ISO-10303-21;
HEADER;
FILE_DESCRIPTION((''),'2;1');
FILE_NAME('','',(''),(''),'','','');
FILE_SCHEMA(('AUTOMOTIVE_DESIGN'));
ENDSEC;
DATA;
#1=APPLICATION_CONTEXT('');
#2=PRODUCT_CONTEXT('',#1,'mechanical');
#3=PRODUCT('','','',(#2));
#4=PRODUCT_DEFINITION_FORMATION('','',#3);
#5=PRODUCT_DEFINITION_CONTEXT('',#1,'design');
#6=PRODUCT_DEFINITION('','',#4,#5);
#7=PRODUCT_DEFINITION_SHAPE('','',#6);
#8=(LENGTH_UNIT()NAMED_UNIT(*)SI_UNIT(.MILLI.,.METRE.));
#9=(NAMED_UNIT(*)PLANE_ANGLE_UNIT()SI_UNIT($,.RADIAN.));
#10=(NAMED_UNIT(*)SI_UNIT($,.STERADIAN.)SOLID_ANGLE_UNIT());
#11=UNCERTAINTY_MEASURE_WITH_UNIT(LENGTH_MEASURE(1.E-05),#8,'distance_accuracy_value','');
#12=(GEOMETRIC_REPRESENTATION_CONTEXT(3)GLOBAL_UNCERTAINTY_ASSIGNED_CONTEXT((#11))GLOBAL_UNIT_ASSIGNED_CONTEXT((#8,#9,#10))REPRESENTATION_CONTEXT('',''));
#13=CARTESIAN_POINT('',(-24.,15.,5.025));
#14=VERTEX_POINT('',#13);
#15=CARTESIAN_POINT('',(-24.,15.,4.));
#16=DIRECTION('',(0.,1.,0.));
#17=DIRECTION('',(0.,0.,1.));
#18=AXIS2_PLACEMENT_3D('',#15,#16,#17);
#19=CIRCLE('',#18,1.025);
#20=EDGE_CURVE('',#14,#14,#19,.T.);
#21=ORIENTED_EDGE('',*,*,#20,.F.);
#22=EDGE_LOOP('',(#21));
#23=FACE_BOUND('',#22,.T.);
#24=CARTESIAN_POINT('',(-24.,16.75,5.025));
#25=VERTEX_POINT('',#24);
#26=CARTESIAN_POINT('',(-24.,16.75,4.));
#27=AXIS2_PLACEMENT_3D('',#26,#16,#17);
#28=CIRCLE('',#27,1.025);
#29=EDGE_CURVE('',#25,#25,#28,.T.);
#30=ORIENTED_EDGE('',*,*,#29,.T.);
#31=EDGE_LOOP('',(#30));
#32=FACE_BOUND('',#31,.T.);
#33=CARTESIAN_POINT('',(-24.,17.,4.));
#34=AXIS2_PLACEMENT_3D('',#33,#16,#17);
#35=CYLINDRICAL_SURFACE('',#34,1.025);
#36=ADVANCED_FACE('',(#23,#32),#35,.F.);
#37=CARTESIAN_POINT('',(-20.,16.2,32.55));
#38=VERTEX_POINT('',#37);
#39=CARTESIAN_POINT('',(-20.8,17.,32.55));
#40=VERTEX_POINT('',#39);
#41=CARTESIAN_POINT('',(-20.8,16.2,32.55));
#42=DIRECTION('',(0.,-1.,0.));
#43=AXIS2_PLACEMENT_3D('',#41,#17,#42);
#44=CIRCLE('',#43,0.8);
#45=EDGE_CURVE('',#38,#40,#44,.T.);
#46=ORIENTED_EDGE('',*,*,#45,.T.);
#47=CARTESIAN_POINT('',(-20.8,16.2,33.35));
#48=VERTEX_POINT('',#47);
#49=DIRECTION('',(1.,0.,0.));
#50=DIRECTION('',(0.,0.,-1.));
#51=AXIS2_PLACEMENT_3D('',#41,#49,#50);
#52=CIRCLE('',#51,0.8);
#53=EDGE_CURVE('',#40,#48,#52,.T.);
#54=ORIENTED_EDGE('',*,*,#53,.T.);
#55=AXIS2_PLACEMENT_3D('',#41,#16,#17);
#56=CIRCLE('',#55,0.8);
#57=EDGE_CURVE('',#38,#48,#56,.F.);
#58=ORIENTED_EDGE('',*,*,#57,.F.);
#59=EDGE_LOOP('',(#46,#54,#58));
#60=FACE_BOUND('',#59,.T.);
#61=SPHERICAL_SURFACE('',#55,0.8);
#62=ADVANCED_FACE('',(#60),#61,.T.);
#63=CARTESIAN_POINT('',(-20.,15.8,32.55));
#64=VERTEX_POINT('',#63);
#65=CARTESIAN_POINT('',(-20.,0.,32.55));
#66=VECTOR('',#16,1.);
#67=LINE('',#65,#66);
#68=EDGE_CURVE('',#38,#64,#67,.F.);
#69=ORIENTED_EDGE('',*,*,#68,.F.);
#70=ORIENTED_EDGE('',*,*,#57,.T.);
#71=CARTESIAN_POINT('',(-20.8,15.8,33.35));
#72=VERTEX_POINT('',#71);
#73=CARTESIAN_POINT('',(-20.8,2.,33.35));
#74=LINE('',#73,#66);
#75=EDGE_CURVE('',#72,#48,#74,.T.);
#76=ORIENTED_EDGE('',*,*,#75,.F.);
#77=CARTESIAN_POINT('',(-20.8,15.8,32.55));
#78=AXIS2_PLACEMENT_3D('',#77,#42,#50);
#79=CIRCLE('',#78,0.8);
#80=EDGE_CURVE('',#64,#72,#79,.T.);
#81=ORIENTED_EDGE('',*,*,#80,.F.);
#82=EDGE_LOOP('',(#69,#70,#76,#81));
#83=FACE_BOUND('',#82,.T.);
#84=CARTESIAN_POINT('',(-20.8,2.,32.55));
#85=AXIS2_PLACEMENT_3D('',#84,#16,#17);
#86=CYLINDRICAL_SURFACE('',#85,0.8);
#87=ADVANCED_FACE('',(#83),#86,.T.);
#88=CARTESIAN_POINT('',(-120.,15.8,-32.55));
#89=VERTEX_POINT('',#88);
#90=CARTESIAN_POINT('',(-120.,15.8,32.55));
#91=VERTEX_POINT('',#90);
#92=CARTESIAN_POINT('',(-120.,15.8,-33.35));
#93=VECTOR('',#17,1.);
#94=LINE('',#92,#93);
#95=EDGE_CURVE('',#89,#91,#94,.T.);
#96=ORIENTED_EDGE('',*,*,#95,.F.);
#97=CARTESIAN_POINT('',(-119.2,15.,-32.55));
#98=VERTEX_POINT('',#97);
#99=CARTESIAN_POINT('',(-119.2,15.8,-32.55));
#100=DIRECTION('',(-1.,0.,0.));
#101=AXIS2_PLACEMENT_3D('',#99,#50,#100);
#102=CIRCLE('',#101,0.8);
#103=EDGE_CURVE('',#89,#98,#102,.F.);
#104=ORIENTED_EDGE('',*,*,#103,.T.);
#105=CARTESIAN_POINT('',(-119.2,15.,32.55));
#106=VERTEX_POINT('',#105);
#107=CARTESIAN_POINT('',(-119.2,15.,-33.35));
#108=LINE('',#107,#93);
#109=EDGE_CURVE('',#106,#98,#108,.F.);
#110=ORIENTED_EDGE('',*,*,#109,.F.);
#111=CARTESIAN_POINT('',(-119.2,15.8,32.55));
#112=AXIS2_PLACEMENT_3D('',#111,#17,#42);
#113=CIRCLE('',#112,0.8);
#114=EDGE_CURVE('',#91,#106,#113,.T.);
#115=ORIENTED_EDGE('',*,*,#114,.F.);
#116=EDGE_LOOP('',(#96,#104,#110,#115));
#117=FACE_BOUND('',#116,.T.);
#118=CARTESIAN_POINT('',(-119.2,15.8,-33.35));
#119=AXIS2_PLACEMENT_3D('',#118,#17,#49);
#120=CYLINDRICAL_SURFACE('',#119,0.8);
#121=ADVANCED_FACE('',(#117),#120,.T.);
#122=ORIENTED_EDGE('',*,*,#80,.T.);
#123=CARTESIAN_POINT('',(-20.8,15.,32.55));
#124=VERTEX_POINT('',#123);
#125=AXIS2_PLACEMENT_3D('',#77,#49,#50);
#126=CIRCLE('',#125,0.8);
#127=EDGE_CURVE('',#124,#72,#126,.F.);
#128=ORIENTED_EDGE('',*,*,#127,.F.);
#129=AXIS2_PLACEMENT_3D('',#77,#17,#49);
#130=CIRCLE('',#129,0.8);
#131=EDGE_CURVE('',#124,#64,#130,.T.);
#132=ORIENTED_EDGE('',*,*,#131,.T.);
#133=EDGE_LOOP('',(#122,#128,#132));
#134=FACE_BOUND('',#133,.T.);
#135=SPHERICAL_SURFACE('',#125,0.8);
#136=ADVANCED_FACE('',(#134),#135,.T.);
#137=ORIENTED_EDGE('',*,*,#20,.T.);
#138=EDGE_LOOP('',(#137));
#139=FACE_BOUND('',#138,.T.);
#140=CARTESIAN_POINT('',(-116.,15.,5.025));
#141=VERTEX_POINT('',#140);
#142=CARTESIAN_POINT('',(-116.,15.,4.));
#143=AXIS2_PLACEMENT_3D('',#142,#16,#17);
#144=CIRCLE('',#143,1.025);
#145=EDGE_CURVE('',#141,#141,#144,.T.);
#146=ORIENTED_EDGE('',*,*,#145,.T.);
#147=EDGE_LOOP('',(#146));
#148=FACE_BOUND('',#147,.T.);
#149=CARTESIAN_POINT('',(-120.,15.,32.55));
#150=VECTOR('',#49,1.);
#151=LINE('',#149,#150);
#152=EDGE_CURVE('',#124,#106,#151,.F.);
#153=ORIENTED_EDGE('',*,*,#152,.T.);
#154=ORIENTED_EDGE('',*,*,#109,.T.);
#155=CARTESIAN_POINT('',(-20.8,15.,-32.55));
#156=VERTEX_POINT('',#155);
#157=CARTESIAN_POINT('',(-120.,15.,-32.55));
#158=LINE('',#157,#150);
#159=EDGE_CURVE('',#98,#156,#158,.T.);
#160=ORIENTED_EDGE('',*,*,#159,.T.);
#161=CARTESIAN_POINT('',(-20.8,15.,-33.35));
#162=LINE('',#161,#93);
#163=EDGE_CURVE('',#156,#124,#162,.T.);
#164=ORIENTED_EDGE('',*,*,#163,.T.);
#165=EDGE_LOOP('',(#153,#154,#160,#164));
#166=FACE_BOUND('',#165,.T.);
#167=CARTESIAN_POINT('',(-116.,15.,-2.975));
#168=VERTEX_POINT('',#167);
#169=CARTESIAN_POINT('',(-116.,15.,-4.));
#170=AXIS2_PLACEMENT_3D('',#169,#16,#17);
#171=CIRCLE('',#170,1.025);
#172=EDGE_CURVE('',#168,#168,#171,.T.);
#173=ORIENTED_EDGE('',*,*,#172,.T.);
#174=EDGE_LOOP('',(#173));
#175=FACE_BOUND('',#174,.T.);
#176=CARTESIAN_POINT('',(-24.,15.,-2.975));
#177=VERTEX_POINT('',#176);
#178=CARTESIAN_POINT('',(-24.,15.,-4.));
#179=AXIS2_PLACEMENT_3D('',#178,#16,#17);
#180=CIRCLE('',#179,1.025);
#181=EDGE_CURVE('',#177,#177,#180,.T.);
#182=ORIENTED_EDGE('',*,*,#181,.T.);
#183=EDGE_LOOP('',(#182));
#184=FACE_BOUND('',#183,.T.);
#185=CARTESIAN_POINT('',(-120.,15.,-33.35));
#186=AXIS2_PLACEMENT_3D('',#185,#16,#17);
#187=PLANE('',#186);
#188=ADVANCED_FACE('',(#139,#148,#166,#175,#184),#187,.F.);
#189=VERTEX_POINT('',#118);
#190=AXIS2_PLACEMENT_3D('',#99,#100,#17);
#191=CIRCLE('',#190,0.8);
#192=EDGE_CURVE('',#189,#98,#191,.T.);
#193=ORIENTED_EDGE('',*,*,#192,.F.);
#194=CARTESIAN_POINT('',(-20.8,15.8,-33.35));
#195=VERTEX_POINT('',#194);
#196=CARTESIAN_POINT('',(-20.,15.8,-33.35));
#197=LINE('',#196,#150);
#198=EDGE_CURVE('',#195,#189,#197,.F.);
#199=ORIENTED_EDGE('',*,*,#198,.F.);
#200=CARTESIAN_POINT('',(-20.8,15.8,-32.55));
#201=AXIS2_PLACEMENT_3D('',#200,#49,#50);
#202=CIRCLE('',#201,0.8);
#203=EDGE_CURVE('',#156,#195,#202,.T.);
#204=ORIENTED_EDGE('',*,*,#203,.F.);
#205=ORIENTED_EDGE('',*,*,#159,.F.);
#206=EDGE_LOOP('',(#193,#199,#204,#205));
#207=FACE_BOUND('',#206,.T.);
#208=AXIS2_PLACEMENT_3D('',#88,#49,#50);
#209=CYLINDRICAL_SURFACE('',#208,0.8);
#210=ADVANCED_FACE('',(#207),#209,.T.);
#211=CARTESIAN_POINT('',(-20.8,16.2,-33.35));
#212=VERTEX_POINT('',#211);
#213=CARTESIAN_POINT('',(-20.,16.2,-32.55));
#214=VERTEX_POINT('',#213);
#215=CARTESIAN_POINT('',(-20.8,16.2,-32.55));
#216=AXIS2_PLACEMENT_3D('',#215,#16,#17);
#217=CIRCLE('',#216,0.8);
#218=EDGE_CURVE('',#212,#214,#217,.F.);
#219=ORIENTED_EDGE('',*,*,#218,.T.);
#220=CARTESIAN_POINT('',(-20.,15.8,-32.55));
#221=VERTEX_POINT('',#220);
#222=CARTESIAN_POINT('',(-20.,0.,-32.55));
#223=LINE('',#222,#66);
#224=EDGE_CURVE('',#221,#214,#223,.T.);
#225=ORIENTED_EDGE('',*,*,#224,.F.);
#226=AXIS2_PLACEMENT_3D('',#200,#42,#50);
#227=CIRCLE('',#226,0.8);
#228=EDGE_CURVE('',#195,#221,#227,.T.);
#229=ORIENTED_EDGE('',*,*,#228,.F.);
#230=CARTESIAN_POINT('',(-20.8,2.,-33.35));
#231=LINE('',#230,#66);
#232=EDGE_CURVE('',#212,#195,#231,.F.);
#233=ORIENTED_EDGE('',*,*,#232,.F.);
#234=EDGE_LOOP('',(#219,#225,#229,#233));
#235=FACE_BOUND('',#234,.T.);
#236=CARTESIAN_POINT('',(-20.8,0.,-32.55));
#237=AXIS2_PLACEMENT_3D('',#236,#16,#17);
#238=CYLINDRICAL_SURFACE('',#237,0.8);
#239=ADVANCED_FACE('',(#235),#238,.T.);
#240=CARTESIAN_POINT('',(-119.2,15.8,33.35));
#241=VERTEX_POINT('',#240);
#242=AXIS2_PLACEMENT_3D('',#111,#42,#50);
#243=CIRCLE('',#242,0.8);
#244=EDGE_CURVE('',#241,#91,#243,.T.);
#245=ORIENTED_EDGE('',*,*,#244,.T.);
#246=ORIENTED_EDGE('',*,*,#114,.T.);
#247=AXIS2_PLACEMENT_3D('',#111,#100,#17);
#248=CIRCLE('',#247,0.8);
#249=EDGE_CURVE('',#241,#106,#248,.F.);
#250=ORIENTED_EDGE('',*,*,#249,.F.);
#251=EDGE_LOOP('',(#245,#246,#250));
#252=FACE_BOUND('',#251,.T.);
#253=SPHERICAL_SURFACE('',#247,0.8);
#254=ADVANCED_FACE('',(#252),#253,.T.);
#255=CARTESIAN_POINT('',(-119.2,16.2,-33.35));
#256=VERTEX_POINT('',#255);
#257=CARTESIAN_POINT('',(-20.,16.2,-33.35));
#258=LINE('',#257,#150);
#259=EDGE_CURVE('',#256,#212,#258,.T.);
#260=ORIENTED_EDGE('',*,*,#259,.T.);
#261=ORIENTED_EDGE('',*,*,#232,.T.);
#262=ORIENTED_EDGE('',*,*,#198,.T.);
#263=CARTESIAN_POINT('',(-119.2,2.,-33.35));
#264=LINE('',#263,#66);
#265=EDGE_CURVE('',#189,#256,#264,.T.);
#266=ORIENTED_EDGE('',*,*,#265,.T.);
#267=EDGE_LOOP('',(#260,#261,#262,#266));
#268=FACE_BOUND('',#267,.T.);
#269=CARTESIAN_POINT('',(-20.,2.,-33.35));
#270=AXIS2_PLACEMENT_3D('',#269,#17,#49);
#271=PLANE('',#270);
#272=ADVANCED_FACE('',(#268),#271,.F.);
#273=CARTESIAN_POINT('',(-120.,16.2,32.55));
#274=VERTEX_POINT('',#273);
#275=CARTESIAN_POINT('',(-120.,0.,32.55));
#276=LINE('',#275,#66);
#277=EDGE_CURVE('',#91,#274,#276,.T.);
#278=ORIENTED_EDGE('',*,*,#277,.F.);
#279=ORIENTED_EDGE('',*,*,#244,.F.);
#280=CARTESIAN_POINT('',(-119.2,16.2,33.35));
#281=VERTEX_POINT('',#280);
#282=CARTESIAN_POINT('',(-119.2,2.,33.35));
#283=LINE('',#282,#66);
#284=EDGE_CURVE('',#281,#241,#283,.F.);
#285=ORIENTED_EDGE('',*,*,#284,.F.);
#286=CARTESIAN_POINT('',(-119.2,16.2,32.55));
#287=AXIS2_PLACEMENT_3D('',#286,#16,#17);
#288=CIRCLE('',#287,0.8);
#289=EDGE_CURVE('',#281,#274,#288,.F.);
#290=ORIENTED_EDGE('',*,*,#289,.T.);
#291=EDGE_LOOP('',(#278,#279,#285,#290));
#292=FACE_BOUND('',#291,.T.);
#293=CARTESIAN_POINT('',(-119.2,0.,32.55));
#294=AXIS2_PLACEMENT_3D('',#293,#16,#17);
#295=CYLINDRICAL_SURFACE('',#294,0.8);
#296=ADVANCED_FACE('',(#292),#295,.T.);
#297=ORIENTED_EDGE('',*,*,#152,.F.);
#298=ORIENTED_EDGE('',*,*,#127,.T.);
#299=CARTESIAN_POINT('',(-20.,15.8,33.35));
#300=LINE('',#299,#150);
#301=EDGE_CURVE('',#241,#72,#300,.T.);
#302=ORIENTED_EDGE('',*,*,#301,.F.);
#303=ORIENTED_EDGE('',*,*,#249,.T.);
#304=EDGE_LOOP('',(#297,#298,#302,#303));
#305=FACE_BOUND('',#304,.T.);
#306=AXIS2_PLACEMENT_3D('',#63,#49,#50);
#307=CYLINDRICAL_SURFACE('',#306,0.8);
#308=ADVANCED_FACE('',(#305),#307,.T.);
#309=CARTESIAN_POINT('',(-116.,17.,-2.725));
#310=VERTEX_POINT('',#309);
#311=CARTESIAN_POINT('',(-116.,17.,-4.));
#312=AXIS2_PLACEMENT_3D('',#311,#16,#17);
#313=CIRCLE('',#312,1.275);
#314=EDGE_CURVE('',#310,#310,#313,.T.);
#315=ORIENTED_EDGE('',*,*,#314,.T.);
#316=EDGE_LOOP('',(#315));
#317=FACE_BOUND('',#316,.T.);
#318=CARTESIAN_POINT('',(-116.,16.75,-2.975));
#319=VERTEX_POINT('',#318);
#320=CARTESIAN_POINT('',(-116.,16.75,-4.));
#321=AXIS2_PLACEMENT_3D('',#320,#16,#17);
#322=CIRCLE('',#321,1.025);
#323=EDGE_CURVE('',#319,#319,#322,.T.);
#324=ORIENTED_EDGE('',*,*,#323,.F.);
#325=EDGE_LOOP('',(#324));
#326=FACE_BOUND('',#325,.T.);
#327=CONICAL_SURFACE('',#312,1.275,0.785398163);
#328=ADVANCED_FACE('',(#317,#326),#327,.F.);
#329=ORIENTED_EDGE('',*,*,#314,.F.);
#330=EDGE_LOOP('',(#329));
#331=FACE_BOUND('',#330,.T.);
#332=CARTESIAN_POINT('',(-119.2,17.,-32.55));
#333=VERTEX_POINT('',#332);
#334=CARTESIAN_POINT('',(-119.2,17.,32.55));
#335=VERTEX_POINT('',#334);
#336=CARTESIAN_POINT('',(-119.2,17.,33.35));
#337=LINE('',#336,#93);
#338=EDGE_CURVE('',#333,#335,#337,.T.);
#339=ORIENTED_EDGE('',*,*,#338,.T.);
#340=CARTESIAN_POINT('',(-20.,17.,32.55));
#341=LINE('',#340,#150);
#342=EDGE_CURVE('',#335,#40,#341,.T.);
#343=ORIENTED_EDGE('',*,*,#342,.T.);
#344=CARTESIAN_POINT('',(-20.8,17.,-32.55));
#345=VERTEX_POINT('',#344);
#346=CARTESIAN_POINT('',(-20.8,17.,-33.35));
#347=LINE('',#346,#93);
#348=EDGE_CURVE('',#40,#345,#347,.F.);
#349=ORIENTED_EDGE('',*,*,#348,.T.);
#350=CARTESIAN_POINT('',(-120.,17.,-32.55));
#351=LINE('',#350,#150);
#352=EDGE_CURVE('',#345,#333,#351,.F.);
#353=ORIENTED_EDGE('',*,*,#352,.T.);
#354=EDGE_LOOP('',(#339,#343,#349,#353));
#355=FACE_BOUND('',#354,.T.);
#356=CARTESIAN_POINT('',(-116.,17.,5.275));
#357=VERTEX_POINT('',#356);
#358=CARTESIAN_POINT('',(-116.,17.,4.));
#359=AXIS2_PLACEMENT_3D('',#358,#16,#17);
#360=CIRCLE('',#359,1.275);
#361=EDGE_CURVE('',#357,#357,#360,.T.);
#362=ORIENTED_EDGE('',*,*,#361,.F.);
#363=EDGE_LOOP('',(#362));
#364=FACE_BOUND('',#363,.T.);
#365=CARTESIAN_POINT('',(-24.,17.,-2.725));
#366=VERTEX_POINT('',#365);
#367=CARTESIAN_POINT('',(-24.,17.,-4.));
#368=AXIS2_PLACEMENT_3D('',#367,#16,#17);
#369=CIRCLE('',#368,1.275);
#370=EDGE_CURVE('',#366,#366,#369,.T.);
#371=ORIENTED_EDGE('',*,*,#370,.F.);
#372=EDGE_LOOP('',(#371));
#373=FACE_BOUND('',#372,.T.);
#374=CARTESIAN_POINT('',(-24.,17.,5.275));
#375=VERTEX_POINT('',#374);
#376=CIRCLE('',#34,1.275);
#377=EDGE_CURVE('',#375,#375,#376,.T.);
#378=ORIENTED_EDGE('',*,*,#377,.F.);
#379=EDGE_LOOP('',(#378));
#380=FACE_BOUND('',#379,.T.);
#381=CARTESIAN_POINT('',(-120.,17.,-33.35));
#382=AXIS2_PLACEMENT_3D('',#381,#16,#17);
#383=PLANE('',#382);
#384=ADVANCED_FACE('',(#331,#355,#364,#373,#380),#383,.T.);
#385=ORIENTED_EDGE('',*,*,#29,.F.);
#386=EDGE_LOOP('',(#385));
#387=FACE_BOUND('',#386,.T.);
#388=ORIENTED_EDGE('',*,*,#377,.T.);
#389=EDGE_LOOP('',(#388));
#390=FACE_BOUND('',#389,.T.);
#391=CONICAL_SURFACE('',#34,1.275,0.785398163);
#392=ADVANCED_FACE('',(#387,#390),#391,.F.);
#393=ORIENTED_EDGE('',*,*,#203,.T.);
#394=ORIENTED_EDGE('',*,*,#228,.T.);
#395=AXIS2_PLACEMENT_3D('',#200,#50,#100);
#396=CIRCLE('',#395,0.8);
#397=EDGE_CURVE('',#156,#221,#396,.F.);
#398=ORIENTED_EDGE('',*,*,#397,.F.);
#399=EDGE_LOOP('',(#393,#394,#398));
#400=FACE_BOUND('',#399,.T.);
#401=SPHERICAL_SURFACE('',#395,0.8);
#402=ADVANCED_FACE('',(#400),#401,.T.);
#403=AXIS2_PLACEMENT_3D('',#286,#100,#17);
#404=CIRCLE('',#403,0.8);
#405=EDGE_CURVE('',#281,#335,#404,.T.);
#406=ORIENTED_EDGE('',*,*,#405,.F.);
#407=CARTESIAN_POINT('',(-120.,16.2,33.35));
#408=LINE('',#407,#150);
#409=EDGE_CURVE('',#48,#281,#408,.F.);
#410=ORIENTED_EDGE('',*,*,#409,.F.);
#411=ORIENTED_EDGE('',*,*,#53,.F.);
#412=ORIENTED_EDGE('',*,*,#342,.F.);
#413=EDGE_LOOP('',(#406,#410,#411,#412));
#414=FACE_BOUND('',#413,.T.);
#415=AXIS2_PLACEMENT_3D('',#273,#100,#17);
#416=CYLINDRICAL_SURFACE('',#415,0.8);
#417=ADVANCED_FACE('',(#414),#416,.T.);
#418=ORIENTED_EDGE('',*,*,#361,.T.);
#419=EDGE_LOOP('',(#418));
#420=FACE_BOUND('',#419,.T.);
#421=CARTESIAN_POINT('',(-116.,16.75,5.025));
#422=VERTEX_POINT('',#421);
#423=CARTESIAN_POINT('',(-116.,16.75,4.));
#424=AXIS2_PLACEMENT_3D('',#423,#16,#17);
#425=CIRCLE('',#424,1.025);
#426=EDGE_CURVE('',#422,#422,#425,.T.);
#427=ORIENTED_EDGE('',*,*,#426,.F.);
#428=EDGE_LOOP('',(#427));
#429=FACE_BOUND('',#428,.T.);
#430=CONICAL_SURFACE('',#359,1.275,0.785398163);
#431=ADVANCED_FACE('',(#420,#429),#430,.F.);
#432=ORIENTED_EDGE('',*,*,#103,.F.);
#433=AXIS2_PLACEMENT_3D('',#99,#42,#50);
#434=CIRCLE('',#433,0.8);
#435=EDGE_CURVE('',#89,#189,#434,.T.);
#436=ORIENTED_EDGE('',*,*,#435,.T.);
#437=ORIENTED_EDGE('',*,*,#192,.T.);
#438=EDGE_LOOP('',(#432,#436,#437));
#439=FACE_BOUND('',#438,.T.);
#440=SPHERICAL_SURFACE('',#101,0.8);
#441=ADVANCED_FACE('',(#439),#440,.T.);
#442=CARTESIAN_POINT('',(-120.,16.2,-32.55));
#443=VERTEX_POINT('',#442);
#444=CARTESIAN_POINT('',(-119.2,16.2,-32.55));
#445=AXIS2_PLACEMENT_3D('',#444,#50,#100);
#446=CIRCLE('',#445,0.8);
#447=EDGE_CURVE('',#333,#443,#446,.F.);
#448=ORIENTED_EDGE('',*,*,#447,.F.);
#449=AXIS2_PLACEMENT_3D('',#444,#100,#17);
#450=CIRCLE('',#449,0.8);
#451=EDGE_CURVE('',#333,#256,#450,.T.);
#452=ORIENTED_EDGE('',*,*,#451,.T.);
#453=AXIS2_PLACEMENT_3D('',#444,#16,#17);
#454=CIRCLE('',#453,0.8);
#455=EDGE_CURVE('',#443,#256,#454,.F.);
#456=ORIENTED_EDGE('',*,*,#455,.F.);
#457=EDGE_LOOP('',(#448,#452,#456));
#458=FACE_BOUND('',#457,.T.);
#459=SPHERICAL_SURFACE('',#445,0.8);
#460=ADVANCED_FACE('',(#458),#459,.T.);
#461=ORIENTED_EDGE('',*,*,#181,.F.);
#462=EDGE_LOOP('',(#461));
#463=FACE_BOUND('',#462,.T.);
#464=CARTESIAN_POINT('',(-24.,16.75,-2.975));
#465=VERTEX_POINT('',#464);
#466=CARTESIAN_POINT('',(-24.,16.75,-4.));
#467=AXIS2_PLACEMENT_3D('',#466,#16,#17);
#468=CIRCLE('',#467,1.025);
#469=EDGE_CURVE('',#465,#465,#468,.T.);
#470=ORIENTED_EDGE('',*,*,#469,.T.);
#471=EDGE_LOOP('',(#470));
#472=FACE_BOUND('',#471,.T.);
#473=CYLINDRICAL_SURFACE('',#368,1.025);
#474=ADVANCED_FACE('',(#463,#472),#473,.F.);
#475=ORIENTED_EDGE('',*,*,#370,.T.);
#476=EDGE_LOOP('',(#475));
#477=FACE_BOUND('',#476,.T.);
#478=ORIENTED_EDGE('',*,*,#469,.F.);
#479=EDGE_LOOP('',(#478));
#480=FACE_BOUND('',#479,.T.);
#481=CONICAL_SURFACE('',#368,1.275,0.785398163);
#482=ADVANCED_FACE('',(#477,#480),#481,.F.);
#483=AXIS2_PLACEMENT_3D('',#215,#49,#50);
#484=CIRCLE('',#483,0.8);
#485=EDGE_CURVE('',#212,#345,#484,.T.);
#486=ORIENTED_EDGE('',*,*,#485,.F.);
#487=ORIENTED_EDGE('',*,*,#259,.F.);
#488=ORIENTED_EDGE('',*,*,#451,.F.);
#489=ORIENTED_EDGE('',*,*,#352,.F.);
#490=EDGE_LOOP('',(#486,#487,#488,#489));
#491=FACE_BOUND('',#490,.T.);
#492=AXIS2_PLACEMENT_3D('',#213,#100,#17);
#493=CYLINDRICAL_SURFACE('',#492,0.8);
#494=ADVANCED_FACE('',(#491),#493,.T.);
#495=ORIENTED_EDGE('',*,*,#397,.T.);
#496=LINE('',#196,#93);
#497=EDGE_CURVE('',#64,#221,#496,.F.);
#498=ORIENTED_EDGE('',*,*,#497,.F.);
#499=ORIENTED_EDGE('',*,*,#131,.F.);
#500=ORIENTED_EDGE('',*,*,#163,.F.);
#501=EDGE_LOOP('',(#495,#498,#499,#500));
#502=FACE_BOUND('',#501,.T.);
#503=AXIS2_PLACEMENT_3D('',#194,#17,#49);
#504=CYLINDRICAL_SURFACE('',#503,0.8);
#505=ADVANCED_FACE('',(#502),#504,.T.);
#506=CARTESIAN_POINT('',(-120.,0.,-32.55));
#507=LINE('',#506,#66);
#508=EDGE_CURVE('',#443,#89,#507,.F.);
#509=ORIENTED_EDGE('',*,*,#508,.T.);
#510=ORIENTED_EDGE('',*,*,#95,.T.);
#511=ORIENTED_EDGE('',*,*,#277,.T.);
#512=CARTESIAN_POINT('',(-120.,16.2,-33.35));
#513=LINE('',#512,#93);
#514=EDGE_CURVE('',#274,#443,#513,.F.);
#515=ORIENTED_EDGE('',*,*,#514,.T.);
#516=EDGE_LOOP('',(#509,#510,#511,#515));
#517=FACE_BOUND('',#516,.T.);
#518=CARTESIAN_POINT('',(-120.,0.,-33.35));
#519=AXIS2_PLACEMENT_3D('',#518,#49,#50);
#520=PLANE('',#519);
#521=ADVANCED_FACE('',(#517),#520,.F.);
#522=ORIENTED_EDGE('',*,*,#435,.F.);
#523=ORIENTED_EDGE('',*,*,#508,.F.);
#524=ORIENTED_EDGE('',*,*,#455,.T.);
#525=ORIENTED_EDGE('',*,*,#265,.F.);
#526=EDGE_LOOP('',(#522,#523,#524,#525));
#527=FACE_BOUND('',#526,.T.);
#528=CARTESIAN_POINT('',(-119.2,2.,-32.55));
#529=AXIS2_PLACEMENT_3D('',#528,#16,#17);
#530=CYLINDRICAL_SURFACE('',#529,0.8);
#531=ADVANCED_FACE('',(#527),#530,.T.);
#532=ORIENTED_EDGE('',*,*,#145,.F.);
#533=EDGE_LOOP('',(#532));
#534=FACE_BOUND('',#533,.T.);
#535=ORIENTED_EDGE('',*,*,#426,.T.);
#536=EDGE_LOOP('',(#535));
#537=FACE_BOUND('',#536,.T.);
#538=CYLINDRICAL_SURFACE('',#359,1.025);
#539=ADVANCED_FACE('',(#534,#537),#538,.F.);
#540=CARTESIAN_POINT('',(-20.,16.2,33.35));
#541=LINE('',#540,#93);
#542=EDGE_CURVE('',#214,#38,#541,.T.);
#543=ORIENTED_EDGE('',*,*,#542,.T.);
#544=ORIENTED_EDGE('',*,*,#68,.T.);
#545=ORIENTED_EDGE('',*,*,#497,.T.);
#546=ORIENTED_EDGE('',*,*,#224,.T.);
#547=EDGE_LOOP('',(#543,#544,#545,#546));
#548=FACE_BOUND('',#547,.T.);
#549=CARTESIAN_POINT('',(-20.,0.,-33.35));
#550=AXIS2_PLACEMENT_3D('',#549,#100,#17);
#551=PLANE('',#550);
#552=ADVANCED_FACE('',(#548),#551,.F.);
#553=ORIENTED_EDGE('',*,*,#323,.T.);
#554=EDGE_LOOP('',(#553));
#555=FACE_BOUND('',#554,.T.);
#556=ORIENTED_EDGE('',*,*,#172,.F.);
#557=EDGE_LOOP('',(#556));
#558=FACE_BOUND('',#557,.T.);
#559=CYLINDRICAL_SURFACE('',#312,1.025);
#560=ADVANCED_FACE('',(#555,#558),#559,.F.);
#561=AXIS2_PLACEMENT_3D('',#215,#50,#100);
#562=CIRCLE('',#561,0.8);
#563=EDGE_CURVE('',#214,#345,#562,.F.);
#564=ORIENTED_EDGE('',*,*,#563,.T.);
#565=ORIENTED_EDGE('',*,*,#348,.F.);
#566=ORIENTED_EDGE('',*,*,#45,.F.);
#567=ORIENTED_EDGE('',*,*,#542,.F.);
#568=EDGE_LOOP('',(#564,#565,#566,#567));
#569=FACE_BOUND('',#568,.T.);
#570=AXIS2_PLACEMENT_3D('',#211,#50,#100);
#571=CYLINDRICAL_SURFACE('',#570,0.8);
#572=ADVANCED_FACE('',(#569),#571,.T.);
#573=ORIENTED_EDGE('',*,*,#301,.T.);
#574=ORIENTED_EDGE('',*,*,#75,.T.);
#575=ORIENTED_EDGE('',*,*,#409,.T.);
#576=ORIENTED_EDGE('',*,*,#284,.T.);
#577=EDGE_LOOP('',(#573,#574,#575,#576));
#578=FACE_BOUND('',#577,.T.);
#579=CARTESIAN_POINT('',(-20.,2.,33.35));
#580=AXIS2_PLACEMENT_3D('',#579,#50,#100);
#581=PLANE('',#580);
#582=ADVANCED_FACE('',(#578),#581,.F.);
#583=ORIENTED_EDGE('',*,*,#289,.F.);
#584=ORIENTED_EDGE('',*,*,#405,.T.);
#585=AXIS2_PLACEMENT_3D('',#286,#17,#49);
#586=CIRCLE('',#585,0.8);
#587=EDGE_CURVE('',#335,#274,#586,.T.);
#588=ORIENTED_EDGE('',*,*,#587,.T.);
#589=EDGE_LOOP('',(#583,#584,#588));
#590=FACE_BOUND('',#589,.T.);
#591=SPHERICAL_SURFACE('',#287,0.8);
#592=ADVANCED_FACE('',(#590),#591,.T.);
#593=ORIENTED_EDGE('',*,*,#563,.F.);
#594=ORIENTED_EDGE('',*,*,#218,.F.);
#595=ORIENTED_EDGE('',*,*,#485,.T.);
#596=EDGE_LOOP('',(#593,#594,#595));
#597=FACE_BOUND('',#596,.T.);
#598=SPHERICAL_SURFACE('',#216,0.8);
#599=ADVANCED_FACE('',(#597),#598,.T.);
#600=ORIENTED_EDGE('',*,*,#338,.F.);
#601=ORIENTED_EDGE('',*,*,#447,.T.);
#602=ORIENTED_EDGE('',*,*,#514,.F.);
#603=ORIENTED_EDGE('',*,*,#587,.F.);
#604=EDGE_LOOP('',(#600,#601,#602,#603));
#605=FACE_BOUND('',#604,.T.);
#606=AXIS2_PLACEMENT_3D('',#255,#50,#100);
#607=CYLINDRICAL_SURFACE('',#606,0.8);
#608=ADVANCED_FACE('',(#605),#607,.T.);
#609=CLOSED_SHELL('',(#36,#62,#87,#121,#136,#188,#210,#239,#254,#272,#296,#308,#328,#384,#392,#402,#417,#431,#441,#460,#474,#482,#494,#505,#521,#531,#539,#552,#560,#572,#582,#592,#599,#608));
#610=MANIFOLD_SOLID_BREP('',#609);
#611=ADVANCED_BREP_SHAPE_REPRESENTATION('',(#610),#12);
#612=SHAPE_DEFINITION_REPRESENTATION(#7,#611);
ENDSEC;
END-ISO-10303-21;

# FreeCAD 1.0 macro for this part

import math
import FreeCAD as App
import Part
import Sketcher

V = App.Vector
Q = App.Units.Quantity


def edges_at(feature, points):
    """Names of the edges that pass closest to the given points."""
    edges = feature.Shape.Edges
    near = lambda p: min(range(len(edges)), key=lambda i: edges[i].distToShape(Part.Vertex(*p))[0])
    return sorted({f"Edge{near(p) + 1}" for p in points})

doc = App.newDocument("Part")
body = doc.addObject("PartDesign::Body", "Body")

# Sketch on XZ plane
sketch1 = body.newObject("Sketcher::SketchObject", "Sketch")
sketch1.AttachmentSupport = (doc.getObject("XZ_Plane"), [""])
sketch1.MapMode = "FlatFace"
sketch1.addGeometry([
    Part.LineSegment(V(-20, -33, 0), V(-20, 33, 0)),
    Part.LineSegment(V(-20, 33, 0), V(20, 33, 0)),
    Part.LineSegment(V(20, 33, 0), V(20, -33, 0)),
    Part.LineSegment(V(20, -33, 0), V(-20, -33, 0)),
], False)
sketch1.addConstraint([
    Sketcher.Constraint("Coincident", 0, 2, 1, 1),
    Sketcher.Constraint("Coincident", 1, 2, 2, 1),
    Sketcher.Constraint("Coincident", 2, 2, 3, 1),
    Sketcher.Constraint("Coincident", 3, 2, 0, 1),
    Sketcher.Constraint("Vertical", 0),
    Sketcher.Constraint("Horizontal", 1),
    Sketcher.Constraint("Vertical", 2),
    Sketcher.Constraint("Horizontal", 3),
    Sketcher.Constraint("Symmetric", 0, 2, 2, 2, -1, 1),
    Sketcher.Constraint("DistanceX", 1, 1, 1, 2, 40.0),
    Sketcher.Constraint("DistanceY", 0, 1, 0, 2, 66.7),
])
pad1 = body.newObject("PartDesign::Pad", "Pad")
pad1.Profile = sketch1
pad1.Length = 2
pad1.Reversed = True

# Sketch on XZ plane
sketch2 = body.newObject("Sketcher::SketchObject", "Sketch001")
sketch2.AttachmentSupport = (doc.getObject("XZ_Plane"), [""])
sketch2.MapMode = "FlatFace"
sketch2.AttachmentOffset = App.Placement(V(0, 0, -2), App.Rotation())
sketch2.addGeometry([
    Part.LineSegment(V(-20, -33.4, 0), V(-20, 33.4, 0)),
    Part.LineSegment(V(-20, 33.4, 0), V(-16, 33.4, 0)),
    Part.LineSegment(V(-16, 33.4, 0), V(-16, -33.4, 0)),
    Part.LineSegment(V(-16, -33.4, 0), V(-20, -33.4, 0)),
], False)
sketch2.addConstraint([
    Sketcher.Constraint("Coincident", 0, 2, 1, 1),
    Sketcher.Constraint("Coincident", 1, 2, 2, 1),
    Sketcher.Constraint("Coincident", 2, 2, 3, 1),
    Sketcher.Constraint("Coincident", 3, 2, 0, 1),
    Sketcher.Constraint("Vertical", 0),
    Sketcher.Constraint("Horizontal", 1),
    Sketcher.Constraint("Vertical", 2),
    Sketcher.Constraint("Horizontal", 3),
    Sketcher.Constraint("DistanceX", 1, 1, 1, 2, 4.0),
    Sketcher.Constraint("DistanceY", 0, 1, 0, 2, 66.7),
    Sketcher.Constraint("DistanceX", 0, 2, -1, 1, 20.0),
    Sketcher.Constraint("DistanceY", -1, 1, 0, 2, 33.35),
])
pad2 = body.newObject("PartDesign::Pad", "Pad001")
pad2.Profile = sketch2
pad2.Length = 100
pad2.Reversed = True

# Sketch on YZ plane
sketch3 = body.newObject("Sketcher::SketchObject", "Sketch002")
sketch3.AttachmentSupport = (doc.getObject("YZ_Plane"), [""])
sketch3.MapMode = "FlatFace"
sketch3.AttachmentOffset = App.Placement(V(0, 0, -20), App.Rotation())
sketch3.addGeometry([
    Part.ArcOfCircle(Part.Circle(V(69, 0, 0), V(0, 0, 1), 33), math.radians(0), math.radians(90)),  # 0
    Part.LineSegment(V(69, 33, 0), V(102, 33, 0)),  # 1
    Part.LineSegment(V(102, 33, 0), V(102, 0, 0)),  # 2
    Part.ArcOfCircle(Part.Circle(V(69, 0, 0), V(0, 0, 1), 33), math.radians(-90), math.radians(0)),  # 3
    Part.LineSegment(V(102, 0, 0), V(102, -33, 0)),  # 4
    Part.LineSegment(V(102, -33, 0), V(69, -33, 0)),  # 5
], False)
sketch3.addConstraint([
    Sketcher.Constraint("Tangent", 0, 2, 1, 1),
    Sketcher.Constraint("Coincident", 1, 2, 2, 1),
    Sketcher.Constraint("Tangent", 2, 2, 0, 1),
    Sketcher.Constraint("Tangent", 3, 2, 4, 1),
    Sketcher.Constraint("Coincident", 4, 2, 5, 1),
    Sketcher.Constraint("Tangent", 5, 2, 3, 1),
    Sketcher.Constraint("Horizontal", 1),
    Sketcher.Constraint("Vertical", 2),
    Sketcher.Constraint("Vertical", 4),
    Sketcher.Constraint("Horizontal", 5),
    Sketcher.Constraint("Coincident", 3, 3, 0, 3),
    Sketcher.Constraint("Equal", 0, 3),
    Sketcher.Constraint("PointOnObject", 0, 3, -1),
    Sketcher.Constraint("Radius", 0, 33.35),
    Sketcher.Constraint("DistanceX", -1, 1, 1, 2, 102.0),
])
pocket1 = body.newObject("PartDesign::Pocket", "Pocket")
pocket1.Profile = sketch3
pocket1.Type = "ThroughAll"
pocket1.Midplane = True

# Sketch on YZ plane
sketch4 = body.newObject("Sketcher::SketchObject", "Sketch003")
sketch4.AttachmentSupport = (doc.getObject("YZ_Plane"), [""])
sketch4.MapMode = "FlatFace"
sketch4.AttachmentOffset = App.Placement(V(0, 0, -20), App.Rotation())
sketch4.addGeometry([
    Part.Circle(V(97.7, 0, 0), V(0, 0, 1), 1.6),
    Part.Circle(V(54.1, 25.1, 0), V(0, 0, 1), 1.6),
    Part.Circle(V(54.1, -25.1, 0), V(0, 0, 1), 1.6),
], False)
sketch4.addConstraint([
    Sketcher.Constraint("Equal", 0, 1),
    Sketcher.Constraint("Equal", 1, 2),
    Sketcher.Constraint("Symmetric", 1, 3, 2, 3, -1),
    Sketcher.Constraint("PointOnObject", 0, 3, -1),
    Sketcher.Constraint("Diameter", 0, 3.3),
    Sketcher.Constraint("DistanceX", 1, 3, 0, 3, 43.5),
    Sketcher.Constraint("DistanceX", -1, 1, 0, 3, 97.65),
    Sketcher.Constraint("DistanceY", -1, 1, 1, 3, 25.114737),
])
doc.recompute()
hole = body.newObject("PartDesign::Hole", "Hole")
hole.Profile = sketch4
hole.ThreadType = "None"
hole.Diameter = 3.3
hole.DepthType = "ThroughAll"
hole.HoleCutType = "Countersink"
hole.HoleCutDiameter = 4.05
hole.HoleCutCountersinkAngle = 90
hole.Reversed = True

# Sketch on YZ plane
sketch5 = body.newObject("Sketcher::SketchObject", "Sketch004")
sketch5.AttachmentSupport = (doc.getObject("YZ_Plane"), [""])
sketch5.MapMode = "FlatFace"
sketch5.AttachmentOffset = App.Placement(V(0, 0, 15), App.Rotation())
sketch5.addGeometry([
    Part.LineSegment(V(0, -28.4, 0), V(2, -28.4, 0)),  # 0
    Part.LineSegment(V(2, -28.4, 0), V(2, -26.3, 0)),  # 1
    Part.LineSegment(V(2, -26.3, 0), V(1.6, -26.7, 0)),  # 2
    Part.LineSegment(V(1.6, -26.7, 0), V(0, -26.7, 0)),  # 3
    Part.LineSegment(V(0, -26.7, 0), V(0, -28.4, 0)),  # 4
], False)
sketch5.addGeometry(Part.LineSegment(V(2, -28.4, 0), V(0, -28.4, 0)), True)  # axis
sketch5.addConstraint([
    Sketcher.Constraint("Coincident", 0, 2, 1, 1),
    Sketcher.Constraint("Coincident", 1, 2, 2, 1),
    Sketcher.Constraint("Coincident", 2, 2, 3, 1),
    Sketcher.Constraint("Coincident", 3, 2, 4, 1),
    Sketcher.Constraint("Coincident", 4, 2, 0, 1),
    Sketcher.Constraint("Horizontal", 0),
    Sketcher.Constraint("Vertical", 1),
    Sketcher.Constraint("Horizontal", 3),
    Sketcher.Constraint("Vertical", 4),
    Sketcher.Constraint("Horizontal", 5),
    Sketcher.Constraint("Coincident", 5, 1, 0, 2),
    Sketcher.Constraint("PointOnObject", 3, 2, -2),
    Sketcher.Constraint("PointOnObject", 5, 2, -2),
    Sketcher.Constraint("DistanceX", 0, 1, 0, 2, 2.0),
    Sketcher.Constraint("Angle", 2, Q("-135 deg")),
    Sketcher.Constraint("DistanceY", 4, 2, 4, 1, 1.65),
    Sketcher.Constraint("DistanceY", 2, 2, -1, 1, 26.7),
    Sketcher.Constraint("DistanceX", 3, 2, 3, 1, 1.625),
])
groove = body.newObject("PartDesign::Groove", "Groove")
groove.Profile = sketch5
groove.ReferenceAxis = (sketch5, ["Axis0"])
groove.Angle = 360
doc.recompute()

datumline = body.newObject("PartDesign::Line", "DatumLine")
datumline.Placement = App.Placement(V(0, 0, 0), App.Rotation(V(0, 0, 1), V(-0.950808565, 0, 0.309779072)))
linearpattern = body.newObject("PartDesign::LinearPattern", "LinearPattern")
linearpattern.Originals = [groove]
linearpattern.Direction = (datumline, [""])
linearpattern.Mode = "offset"
linearpattern.Offset = 68.592947
linearpattern.Occurrences = 2
body.Tip = linearpattern
doc.recompute()

linearpattern2 = body.newObject("PartDesign::LinearPattern", "LinearPattern001")
linearpattern2.Originals = [groove]
linearpattern2.Direction = (doc.getObject("X_Axis"), [""])
linearpattern2.Mode = "offset"
linearpattern2.Offset = 26
linearpattern2.Occurrences = 2
linearpattern2.Reversed = True
body.Tip = linearpattern2
doc.recompute()

datumline2 = body.newObject("PartDesign::Line", "DatumLine001")
datumline2.Placement = App.Placement(V(0, 0, 0), App.Rotation(V(0, 0, 1), V(-0.416820309, 0, 0.908988905)))
linearpattern3 = body.newObject("PartDesign::LinearPattern", "LinearPattern002")
linearpattern3.Originals = [groove]
linearpattern3.Direction = (datumline2, [""])
linearpattern3.Mode = "offset"
linearpattern3.Offset = 62.376999
linearpattern3.Occurrences = 2
body.Tip = linearpattern3
doc.recompute()

linearpattern4 = body.newObject("PartDesign::LinearPattern", "LinearPattern003")
linearpattern4.Originals = [groove]
linearpattern4.Direction = (doc.getObject("Z_Axis"), [""])
linearpattern4.Mode = "offset"
linearpattern4.Offset = 56.7
linearpattern4.Occurrences = 2
body.Tip = linearpattern4

# Sketch on YZ plane
sketch6 = body.newObject("Sketcher::SketchObject", "Sketch005")
sketch6.AttachmentSupport = (doc.getObject("YZ_Plane"), [""])
sketch6.MapMode = "FlatFace"
sketch6.AttachmentOffset = App.Placement(V(0, 0, -20), App.Rotation())
sketch6.addGeometry([
    Part.LineSegment(V(17, -33.4, 0), V(15, -33.4, 0)),
    Part.LineSegment(V(15, -33.4, 0), V(15, 33.4, 0)),
    Part.LineSegment(V(15, 33.4, 0), V(17, 33.4, 0)),
    Part.LineSegment(V(17, 33.4, 0), V(17, -33.4, 0)),
], False)
sketch6.addConstraint([
    Sketcher.Constraint("Coincident", 0, 2, 1, 1),
    Sketcher.Constraint("Coincident", 1, 2, 2, 1),
    Sketcher.Constraint("Coincident", 2, 2, 3, 1),
    Sketcher.Constraint("Coincident", 3, 2, 0, 1),
    Sketcher.Constraint("Horizontal", 0),
    Sketcher.Constraint("Vertical", 1),
    Sketcher.Constraint("Horizontal", 2),
    Sketcher.Constraint("Vertical", 3),
    Sketcher.Constraint("DistanceX", 0, 2, 0, 1, 2.0),
    Sketcher.Constraint("DistanceY", 1, 1, 1, 2, 66.7),
    Sketcher.Constraint("DistanceX", -1, 1, 0, 2, 15.0),
    Sketcher.Constraint("DistanceY", 0, 2, -1, 1, 33.35),
])
pad3 = body.newObject("PartDesign::Pad", "Pad002")
pad3.Profile = sketch6
pad3.Length = 100
pad3.Reversed = True
body2 = doc.addObject("PartDesign::Body", "Body001")

# Sketch on XZ plane
sketch7 = body2.newObject("Sketcher::SketchObject", "Sketch006")
sketch7.AttachmentSupport = (doc.getObject("XZ_Plane001"), [""])
sketch7.MapMode = "FlatFace"
sketch7.addGeometry([
    Part.LineSegment(V(-160, -33, 0), V(-160, 33, 0)),
    Part.LineSegment(V(-160, 33, 0), V(-120, 33, 0)),
    Part.LineSegment(V(-120, 33, 0), V(-120, -33, 0)),
    Part.LineSegment(V(-120, -33, 0), V(-160, -33, 0)),
], False)
sketch7.addConstraint([
    Sketcher.Constraint("Coincident", 0, 2, 1, 1),
    Sketcher.Constraint("Coincident", 1, 2, 2, 1),
    Sketcher.Constraint("Coincident", 2, 2, 3, 1),
    Sketcher.Constraint("Coincident", 3, 2, 0, 1),
    Sketcher.Constraint("Vertical", 0),
    Sketcher.Constraint("Horizontal", 1),
    Sketcher.Constraint("Vertical", 2),
    Sketcher.Constraint("Horizontal", 3),
    Sketcher.Constraint("DistanceX", 1, 1, 1, 2, 40.0),
    Sketcher.Constraint("DistanceY", 0, 1, 0, 2, 66.7),
    Sketcher.Constraint("DistanceX", 0, 2, -1, 1, 160.0),
    Sketcher.Constraint("DistanceY", -1, 1, 0, 2, 33.35),
])
pad4 = body2.newObject("PartDesign::Pad", "Pad003")
pad4.Profile = sketch7
pad4.Length = 2
pad4.Reversed = True
body.AllowCompound = True
doc.recompute()

boolean = body.newObject("PartDesign::Boolean", "Boolean")
boolean.Type = "Fuse"
boolean.addObjects([body2])

# Sketch on XZ plane
sketch8 = body.newObject("Sketcher::SketchObject", "Sketch007")
sketch8.AttachmentSupport = (doc.getObject("XZ_Plane"), [""])
sketch8.MapMode = "FlatFace"
sketch8.AttachmentOffset = App.Placement(V(0, 0, -2), App.Rotation())
sketch8.addGeometry([
    Part.LineSegment(V(-124, -33.4, 0), V(-124, 33.4, 0)),
    Part.LineSegment(V(-124, 33.4, 0), V(-120, 33.4, 0)),
    Part.LineSegment(V(-120, 33.4, 0), V(-120, -33.4, 0)),
    Part.LineSegment(V(-120, -33.4, 0), V(-124, -33.4, 0)),
], False)
sketch8.addConstraint([
    Sketcher.Constraint("Coincident", 0, 2, 1, 1),
    Sketcher.Constraint("Coincident", 1, 2, 2, 1),
    Sketcher.Constraint("Coincident", 2, 2, 3, 1),
    Sketcher.Constraint("Coincident", 3, 2, 0, 1),
    Sketcher.Constraint("Vertical", 0),
    Sketcher.Constraint("Horizontal", 1),
    Sketcher.Constraint("Vertical", 2),
    Sketcher.Constraint("Horizontal", 3),
    Sketcher.Constraint("DistanceX", 1, 1, 1, 2, 4.0),
    Sketcher.Constraint("DistanceY", 0, 1, 0, 2, 66.7),
    Sketcher.Constraint("DistanceX", 0, 2, -1, 1, 124.0),
    Sketcher.Constraint("DistanceY", -1, 1, 0, 2, 33.35),
])
pad5 = body.newObject("PartDesign::Pad", "Pad004")
pad5.Profile = sketch8
pad5.Length = 100
pad5.Reversed = True

# Sketch on YZ plane
sketch9 = body.newObject("Sketcher::SketchObject", "Sketch008")
sketch9.AttachmentSupport = (doc.getObject("YZ_Plane"), [""])
sketch9.MapMode = "FlatFace"
sketch9.AttachmentOffset = App.Placement(V(0, 0, -124), App.Rotation())
sketch9.addGeometry([
    Part.ArcOfCircle(Part.Circle(V(69, 0, 0), V(0, 0, 1), 33), math.radians(0), math.radians(90)),  # 0
    Part.LineSegment(V(69, 33, 0), V(102, 33, 0)),  # 1
    Part.LineSegment(V(102, 33, 0), V(102, 0, 0)),  # 2
    Part.ArcOfCircle(Part.Circle(V(69, 0, 0), V(0, 0, 1), 33), math.radians(-90), math.radians(0)),  # 3
    Part.LineSegment(V(102, 0, 0), V(102, -33, 0)),  # 4
    Part.LineSegment(V(102, -33, 0), V(69, -33, 0)),  # 5
], False)
sketch9.addConstraint([
    Sketcher.Constraint("Tangent", 0, 2, 1, 1),
    Sketcher.Constraint("Coincident", 1, 2, 2, 1),
    Sketcher.Constraint("Tangent", 2, 2, 0, 1),
    Sketcher.Constraint("Tangent", 3, 2, 4, 1),
    Sketcher.Constraint("Coincident", 4, 2, 5, 1),
    Sketcher.Constraint("Tangent", 5, 2, 3, 1),
    Sketcher.Constraint("Horizontal", 1),
    Sketcher.Constraint("Vertical", 2),
    Sketcher.Constraint("Vertical", 4),
    Sketcher.Constraint("Horizontal", 5),
    Sketcher.Constraint("Coincident", 3, 3, 0, 3),
    Sketcher.Constraint("Equal", 0, 3),
    Sketcher.Constraint("PointOnObject", 0, 3, -1),
    Sketcher.Constraint("Radius", 0, 33.35),
    Sketcher.Constraint("DistanceX", -1, 1, 1, 2, 102.0),
])
pocket2 = body.newObject("PartDesign::Pocket", "Pocket001")
pocket2.Profile = sketch9
pocket2.Type = "ThroughAll"
pocket2.Midplane = True

# Sketch on YZ plane
sketch10 = body.newObject("Sketcher::SketchObject", "Sketch009")
sketch10.AttachmentSupport = (doc.getObject("YZ_Plane"), [""])
sketch10.MapMode = "FlatFace"
sketch10.AttachmentOffset = App.Placement(V(0, 0, -129), App.Rotation())
sketch10.addGeometry([
    Part.LineSegment(V(0, -28.4, 0), V(2, -28.4, 0)),  # 0
    Part.LineSegment(V(2, -28.4, 0), V(2, -26.3, 0)),  # 1
    Part.LineSegment(V(2, -26.3, 0), V(1.6, -26.7, 0)),  # 2
    Part.LineSegment(V(1.6, -26.7, 0), V(0, -26.7, 0)),  # 3
    Part.LineSegment(V(0, -26.7, 0), V(0, -28.4, 0)),  # 4
], False)
sketch10.addGeometry(Part.LineSegment(V(2, -28.4, 0), V(0, -28.4, 0)), True)  # axis
sketch10.addConstraint([
    Sketcher.Constraint("Coincident", 0, 2, 1, 1),
    Sketcher.Constraint("Coincident", 1, 2, 2, 1),
    Sketcher.Constraint("Coincident", 2, 2, 3, 1),
    Sketcher.Constraint("Coincident", 3, 2, 4, 1),
    Sketcher.Constraint("Coincident", 4, 2, 0, 1),
    Sketcher.Constraint("Horizontal", 0),
    Sketcher.Constraint("Vertical", 1),
    Sketcher.Constraint("Horizontal", 3),
    Sketcher.Constraint("Vertical", 4),
    Sketcher.Constraint("Horizontal", 5),
    Sketcher.Constraint("Coincident", 5, 1, 0, 2),
    Sketcher.Constraint("PointOnObject", 3, 2, -2),
    Sketcher.Constraint("PointOnObject", 5, 2, -2),
    Sketcher.Constraint("DistanceX", 0, 1, 0, 2, 2.0),
    Sketcher.Constraint("Angle", 2, Q("-135 deg")),
    Sketcher.Constraint("DistanceY", 4, 2, 4, 1, 1.65),
    Sketcher.Constraint("DistanceY", 2, 2, -1, 1, 26.7),
    Sketcher.Constraint("DistanceX", 3, 2, 3, 1, 1.625),
])
groove2 = body.newObject("PartDesign::Groove", "Groove001")
groove2.Profile = sketch10
groove2.ReferenceAxis = (sketch10, ["Axis0"])
groove2.Angle = 360
doc.recompute()

linearpattern5 = body.newObject("PartDesign::LinearPattern", "LinearPattern004")
linearpattern5.Originals = [groove2]
linearpattern5.Direction = (doc.getObject("X_Axis"), [""])
linearpattern5.Mode = "offset"
linearpattern5.Offset = 26
linearpattern5.Occurrences = 2
linearpattern5.Reversed = True
body.Tip = linearpattern5
doc.recompute()

datumline3 = body.newObject("PartDesign::Line", "DatumLine002")
datumline3.Placement = App.Placement(V(0, 0, 0), App.Rotation(V(0, 0, 1), V(-0.416820309, 0, 0.908988905)))
linearpattern6 = body.newObject("PartDesign::LinearPattern", "LinearPattern005")
linearpattern6.Originals = [groove2]
linearpattern6.Direction = (datumline3, [""])
linearpattern6.Mode = "offset"
linearpattern6.Offset = 62.376999
linearpattern6.Occurrences = 2
body.Tip = linearpattern6
doc.recompute()

linearpattern7 = body.newObject("PartDesign::LinearPattern", "LinearPattern006")
linearpattern7.Originals = [groove2]
linearpattern7.Direction = (doc.getObject("Z_Axis"), [""])
linearpattern7.Mode = "offset"
linearpattern7.Offset = 56.7
linearpattern7.Occurrences = 2
body.Tip = linearpattern7

# Sketch on YZ plane
sketch11 = body.newObject("Sketcher::SketchObject", "Sketch010")
sketch11.AttachmentSupport = (doc.getObject("YZ_Plane"), [""])
sketch11.MapMode = "FlatFace"
sketch11.AttachmentOffset = App.Placement(V(0, 0, -124), App.Rotation())
sketch11.addGeometry(Part.Circle(V(69, 0, 0), V(0, 0, 1), 10), False)
sketch11.addConstraint([
    Sketcher.Constraint("PointOnObject", 0, 3, -1),
    Sketcher.Constraint("Diameter", 0, 19.0),
    Sketcher.Constraint("DistanceX", -1, 1, 0, 3, 68.65),
])
pocket3 = body.newObject("PartDesign::Pocket", "Pocket002")
pocket3.Profile = sketch11
pocket3.Type = "UpToFirst"
pocket3.Reversed = True

# Sketch on YZ plane
sketch12 = body.newObject("Sketcher::SketchObject", "Sketch011")
sketch12.AttachmentSupport = (doc.getObject("YZ_Plane"), [""])
sketch12.MapMode = "FlatFace"
sketch12.AttachmentOffset = App.Placement(V(0, 0, -16), App.Rotation())
sketch12.addGeometry(Part.Circle(V(69, 0, 0), V(0, 0, 1), 11), False)
sketch12.addConstraint([
    Sketcher.Constraint("PointOnObject", 0, 3, -1),
    Sketcher.Constraint("Diameter", 0, 22.0),
    Sketcher.Constraint("DistanceX", -1, 1, 0, 3, 68.65),
])
pocket4 = body.newObject("PartDesign::Pocket", "Pocket003")
pocket4.Profile = sketch12
pocket4.Type = "UpToFirst"

# Sketch on YZ plane
sketch13 = body.newObject("Sketcher::SketchObject", "Sketch012")
sketch13.AttachmentSupport = (doc.getObject("YZ_Plane"), [""])
sketch13.MapMode = "FlatFace"
sketch13.AttachmentOffset = App.Placement(V(0, 0, -16), App.Rotation())
sketch13.addGeometry(Part.Circle(V(59, -16.7, 0), V(0, 0, 1), 4.5), False)
sketch13.addConstraint([
    Sketcher.Constraint("Diameter", 0, 9.0),
    Sketcher.Constraint("DistanceX", -1, 1, 0, 3, 59.025),
    Sketcher.Constraint("DistanceY", 0, 3, -1, 1, 16.670989),
])
pocket5 = body.newObject("PartDesign::Pocket", "Pocket004")
pocket5.Profile = sketch13
pocket5.Type = "UpToFirst"
doc.recompute()

fillet = body.newObject("PartDesign::Fillet", "Fillet")
fillet.Base = (pocket5, edges_at(pocket5, [
    (-160, 1, -33.35),
    (-160, 1, 33.35),
    (20, 1, 33.35),
    (20, 1, -33.35),
]))
fillet.Radius = 2

# Sketch on XZ plane
sketch14 = body.newObject("Sketcher::SketchObject", "Sketch013")
sketch14.AttachmentSupport = (doc.getObject("XZ_Plane"), [""])
sketch14.MapMode = "FlatFace"
sketch14.AttachmentOffset = App.Placement(V(0, 0, -2), App.Rotation())
sketch14.addGeometry([
    Part.LineSegment(V(-160, -33, 0), V(-160, 33, 0)),
    Part.LineSegment(V(-160, 33, 0), V(-124, 33, 0)),
    Part.LineSegment(V(-124, 33, 0), V(-124, -33, 0)),
    Part.LineSegment(V(-124, -33, 0), V(-160, -33, 0)),
], False)
sketch14.addConstraint([
    Sketcher.Constraint("Coincident", 0, 2, 1, 1),
    Sketcher.Constraint("Coincident", 1, 2, 2, 1),
    Sketcher.Constraint("Coincident", 2, 2, 3, 1),
    Sketcher.Constraint("Coincident", 3, 2, 0, 1),
    Sketcher.Constraint("Vertical", 0),
    Sketcher.Constraint("Horizontal", 1),
    Sketcher.Constraint("Vertical", 2),
    Sketcher.Constraint("Horizontal", 3),
    Sketcher.Constraint("DistanceX", 1, 1, 1, 2, 36.0),
    Sketcher.Constraint("DistanceY", 0, 1, 0, 2, 66.7),
    Sketcher.Constraint("DistanceX", 0, 2, -1, 1, 160.0),
    Sketcher.Constraint("DistanceY", -1, 1, 0, 2, 33.35),
])
pocket6 = body.newObject("PartDesign::Pocket", "Pocket005")
pocket6.Profile = sketch14
pocket6.Type = "UpToFirst"
pocket6.Reversed = True

# Sketch on XZ plane
sketch15 = body.newObject("Sketcher::SketchObject", "Sketch014")
sketch15.AttachmentSupport = (doc.getObject("XZ_Plane"), [""])
sketch15.MapMode = "FlatFace"
sketch15.AttachmentOffset = App.Placement(V(0, 0, -2), App.Rotation())
sketch15.addGeometry([
    Part.LineSegment(V(-16, -33, 0), V(-16, 33, 0)),
    Part.LineSegment(V(-16, 33, 0), V(20, 33, 0)),
    Part.LineSegment(V(20, 33, 0), V(20, -33, 0)),
    Part.LineSegment(V(20, -33, 0), V(-16, -33, 0)),
], False)
sketch15.addConstraint([
    Sketcher.Constraint("Coincident", 0, 2, 1, 1),
    Sketcher.Constraint("Coincident", 1, 2, 2, 1),
    Sketcher.Constraint("Coincident", 2, 2, 3, 1),
    Sketcher.Constraint("Coincident", 3, 2, 0, 1),
    Sketcher.Constraint("Vertical", 0),
    Sketcher.Constraint("Horizontal", 1),
    Sketcher.Constraint("Vertical", 2),
    Sketcher.Constraint("Horizontal", 3),
    Sketcher.Constraint("DistanceX", 1, 1, 1, 2, 36.0),
    Sketcher.Constraint("DistanceY", 0, 1, 0, 2, 66.7),
    Sketcher.Constraint("DistanceX", 0, 2, -1, 1, 16.0),
    Sketcher.Constraint("DistanceY", -1, 1, 0, 2, 33.35),
])
pocket7 = body.newObject("PartDesign::Pocket", "Pocket006")
pocket7.Profile = sketch15
pocket7.Type = "UpToFirst"
pocket7.Reversed = True

# Sketch on YZ plane
sketch16 = body.newObject("Sketcher::SketchObject", "Sketch015")
sketch16.AttachmentSupport = (doc.getObject("YZ_Plane"), [""])
sketch16.MapMode = "FlatFace"
sketch16.AttachmentOffset = App.Placement(V(0, 0, -16), App.Rotation())
sketch16.addGeometry([
    Part.Circle(V(6, -9, 0), V(0, 0, 1), 1.2),
    Part.Circle(V(6, 9, 0), V(0, 0, 1), 1.2),
], False)
sketch16.addConstraint([
    Sketcher.Constraint("Equal", 0, 1),
    Sketcher.Constraint("Symmetric", 0, 3, 1, 3, -1),
    Sketcher.Constraint("Diameter", 0, 2.5),
    Sketcher.Constraint("DistanceX", -1, 1, 0, 3, 6.0),
    Sketcher.Constraint("DistanceY", 0, 3, -1, 1, 9.0),
])
doc.recompute()
hole2 = body.newObject("PartDesign::Hole", "Hole001")
hole2.Profile = sketch16
hole2.ThreadType = "None"
hole2.Diameter = 2.5
hole2.DepthType = "ThroughAll"
hole2.HoleCutType = "Countersink"
hole2.HoleCutDiameter = 3.05
hole2.HoleCutCountersinkAngle = 90

# Sketch on XZ plane
sketch17 = body.newObject("Sketcher::SketchObject", "Sketch016")
sketch17.AttachmentSupport = (doc.getObject("XZ_Plane"), [""])
sketch17.MapMode = "FlatFace"
sketch17.AttachmentOffset = App.Placement(V(0, 0, -17), App.Rotation())
sketch17.addGeometry([
    Part.LineSegment(V(-124, -33.4, 0), V(-124, 33.4, 0)),  # 0
    Part.LineSegment(V(-124, 33.4, 0), V(-120, 33.4, 0)),  # 1
    Part.LineSegment(V(-120, 33.4, 0), V(-120, -33.4, 0)),  # 2
    Part.LineSegment(V(-120, -33.4, 0), V(-124, -33.4, 0)),  # 3
    Part.LineSegment(V(-20, -33.4, 0), V(-20, 33.4, 0)),  # 4
    Part.LineSegment(V(-20, 33.4, 0), V(-16, 33.4, 0)),  # 5
    Part.LineSegment(V(-16, 33.4, 0), V(-16, -33.4, 0)),  # 6
    Part.LineSegment(V(-16, -33.4, 0), V(-20, -33.4, 0)),  # 7
], False)
sketch17.addConstraint([
    Sketcher.Constraint("Coincident", 0, 2, 1, 1),
    Sketcher.Constraint("Coincident", 1, 2, 2, 1),
    Sketcher.Constraint("Coincident", 2, 2, 3, 1),
    Sketcher.Constraint("Coincident", 3, 2, 0, 1),
    Sketcher.Constraint("Coincident", 4, 2, 5, 1),
    Sketcher.Constraint("Coincident", 5, 2, 6, 1),
    Sketcher.Constraint("Coincident", 6, 2, 7, 1),
    Sketcher.Constraint("Coincident", 7, 2, 4, 1),
    Sketcher.Constraint("Vertical", 0),
    Sketcher.Constraint("Horizontal", 1),
    Sketcher.Constraint("Vertical", 2),
    Sketcher.Constraint("Horizontal", 3),
    Sketcher.Constraint("Vertical", 4),
    Sketcher.Constraint("Horizontal", 5),
    Sketcher.Constraint("Vertical", 6),
    Sketcher.Constraint("Horizontal", 7),
    Sketcher.Constraint("Horizontal", 1, 2, 4, 2),
    Sketcher.Constraint("Horizontal", 3, 2, 6, 2),
    Sketcher.Constraint("Equal", 3, 5),
    Sketcher.Constraint("DistanceX", 1, 1, 1, 2, 4.0),
    Sketcher.Constraint("DistanceY", 0, 1, 0, 2, 66.7),
    Sketcher.Constraint("DistanceX", 0, 2, -1, 1, 124.0),
    Sketcher.Constraint("DistanceX", 4, 2, -1, 1, 20.0),
    Sketcher.Constraint("DistanceY", -1, 1, 0, 2, 33.35),
])
pocket8 = body.newObject("PartDesign::Pocket", "Pocket007")
pocket8.Profile = sketch17
pocket8.Type = "ThroughAll"
pocket8.Midplane = True

# Sketch on XZ plane
sketch18 = body.newObject("Sketcher::SketchObject", "Sketch017")
sketch18.AttachmentSupport = (doc.getObject("XZ_Plane"), [""])
sketch18.MapMode = "FlatFace"
sketch18.AttachmentOffset = App.Placement(V(0, 0, -17), App.Rotation())
sketch18.addGeometry([
    Part.Circle(V(-116, -4, 0), V(0, 0, 1), 1),
    Part.Circle(V(-116, 4, 0), V(0, 0, 1), 1),
    Part.Circle(V(-24, -4, 0), V(0, 0, 1), 1),
    Part.Circle(V(-24, 4, 0), V(0, 0, 1), 1),
], False)
sketch18.addConstraint([
    Sketcher.Constraint("Equal", 0, 1),
    Sketcher.Constraint("Equal", 1, 2),
    Sketcher.Constraint("Equal", 2, 3),
    Sketcher.Constraint("Symmetric", 0, 3, 1, 3, -1),
    Sketcher.Constraint("Symmetric", 2, 3, 3, 3, -1),
    Sketcher.Constraint("Horizontal", 0, 3, 2, 3),
    Sketcher.Constraint("Diameter", 0, 2.05),
    Sketcher.Constraint("DistanceX", 0, 3, -1, 1, 116.0),
    Sketcher.Constraint("DistanceY", 0, 3, -1, 1, 4.0),
    Sketcher.Constraint("DistanceX", 2, 3, -1, 1, 24.0),
])
doc.recompute()
hole3 = body.newObject("PartDesign::Hole", "Hole002")
hole3.Profile = sketch18
hole3.ThreadType = "None"
hole3.Diameter = 2.05
hole3.DepthType = "ThroughAll"
hole3.HoleCutType = "Countersink"
hole3.HoleCutDiameter = 2.55
hole3.HoleCutCountersinkAngle = 90
hole3.Reversed = True
doc.recompute()

fillet2 = body.newObject("PartDesign::Fillet", "Fillet001")
fillet2.Base = (hole3, edges_at(hole3, [
    (-70, 17, -33.35),
    (-20, 15, 0),
    (-70, 15, -33.35),
    (-70, 15, 33.35),
    (-120, 17, 0),
    (-70, 17, 33.35),
    (-120, 15, 0),
    (-20, 17, 0),
    (-120, 16, -33.35),
    (-120, 16, 33.35),
    (-20, 16, -33.35),
    (-20, 16, 33.35),
]))
fillet2.Radius = 0.8

doc.recompute()
